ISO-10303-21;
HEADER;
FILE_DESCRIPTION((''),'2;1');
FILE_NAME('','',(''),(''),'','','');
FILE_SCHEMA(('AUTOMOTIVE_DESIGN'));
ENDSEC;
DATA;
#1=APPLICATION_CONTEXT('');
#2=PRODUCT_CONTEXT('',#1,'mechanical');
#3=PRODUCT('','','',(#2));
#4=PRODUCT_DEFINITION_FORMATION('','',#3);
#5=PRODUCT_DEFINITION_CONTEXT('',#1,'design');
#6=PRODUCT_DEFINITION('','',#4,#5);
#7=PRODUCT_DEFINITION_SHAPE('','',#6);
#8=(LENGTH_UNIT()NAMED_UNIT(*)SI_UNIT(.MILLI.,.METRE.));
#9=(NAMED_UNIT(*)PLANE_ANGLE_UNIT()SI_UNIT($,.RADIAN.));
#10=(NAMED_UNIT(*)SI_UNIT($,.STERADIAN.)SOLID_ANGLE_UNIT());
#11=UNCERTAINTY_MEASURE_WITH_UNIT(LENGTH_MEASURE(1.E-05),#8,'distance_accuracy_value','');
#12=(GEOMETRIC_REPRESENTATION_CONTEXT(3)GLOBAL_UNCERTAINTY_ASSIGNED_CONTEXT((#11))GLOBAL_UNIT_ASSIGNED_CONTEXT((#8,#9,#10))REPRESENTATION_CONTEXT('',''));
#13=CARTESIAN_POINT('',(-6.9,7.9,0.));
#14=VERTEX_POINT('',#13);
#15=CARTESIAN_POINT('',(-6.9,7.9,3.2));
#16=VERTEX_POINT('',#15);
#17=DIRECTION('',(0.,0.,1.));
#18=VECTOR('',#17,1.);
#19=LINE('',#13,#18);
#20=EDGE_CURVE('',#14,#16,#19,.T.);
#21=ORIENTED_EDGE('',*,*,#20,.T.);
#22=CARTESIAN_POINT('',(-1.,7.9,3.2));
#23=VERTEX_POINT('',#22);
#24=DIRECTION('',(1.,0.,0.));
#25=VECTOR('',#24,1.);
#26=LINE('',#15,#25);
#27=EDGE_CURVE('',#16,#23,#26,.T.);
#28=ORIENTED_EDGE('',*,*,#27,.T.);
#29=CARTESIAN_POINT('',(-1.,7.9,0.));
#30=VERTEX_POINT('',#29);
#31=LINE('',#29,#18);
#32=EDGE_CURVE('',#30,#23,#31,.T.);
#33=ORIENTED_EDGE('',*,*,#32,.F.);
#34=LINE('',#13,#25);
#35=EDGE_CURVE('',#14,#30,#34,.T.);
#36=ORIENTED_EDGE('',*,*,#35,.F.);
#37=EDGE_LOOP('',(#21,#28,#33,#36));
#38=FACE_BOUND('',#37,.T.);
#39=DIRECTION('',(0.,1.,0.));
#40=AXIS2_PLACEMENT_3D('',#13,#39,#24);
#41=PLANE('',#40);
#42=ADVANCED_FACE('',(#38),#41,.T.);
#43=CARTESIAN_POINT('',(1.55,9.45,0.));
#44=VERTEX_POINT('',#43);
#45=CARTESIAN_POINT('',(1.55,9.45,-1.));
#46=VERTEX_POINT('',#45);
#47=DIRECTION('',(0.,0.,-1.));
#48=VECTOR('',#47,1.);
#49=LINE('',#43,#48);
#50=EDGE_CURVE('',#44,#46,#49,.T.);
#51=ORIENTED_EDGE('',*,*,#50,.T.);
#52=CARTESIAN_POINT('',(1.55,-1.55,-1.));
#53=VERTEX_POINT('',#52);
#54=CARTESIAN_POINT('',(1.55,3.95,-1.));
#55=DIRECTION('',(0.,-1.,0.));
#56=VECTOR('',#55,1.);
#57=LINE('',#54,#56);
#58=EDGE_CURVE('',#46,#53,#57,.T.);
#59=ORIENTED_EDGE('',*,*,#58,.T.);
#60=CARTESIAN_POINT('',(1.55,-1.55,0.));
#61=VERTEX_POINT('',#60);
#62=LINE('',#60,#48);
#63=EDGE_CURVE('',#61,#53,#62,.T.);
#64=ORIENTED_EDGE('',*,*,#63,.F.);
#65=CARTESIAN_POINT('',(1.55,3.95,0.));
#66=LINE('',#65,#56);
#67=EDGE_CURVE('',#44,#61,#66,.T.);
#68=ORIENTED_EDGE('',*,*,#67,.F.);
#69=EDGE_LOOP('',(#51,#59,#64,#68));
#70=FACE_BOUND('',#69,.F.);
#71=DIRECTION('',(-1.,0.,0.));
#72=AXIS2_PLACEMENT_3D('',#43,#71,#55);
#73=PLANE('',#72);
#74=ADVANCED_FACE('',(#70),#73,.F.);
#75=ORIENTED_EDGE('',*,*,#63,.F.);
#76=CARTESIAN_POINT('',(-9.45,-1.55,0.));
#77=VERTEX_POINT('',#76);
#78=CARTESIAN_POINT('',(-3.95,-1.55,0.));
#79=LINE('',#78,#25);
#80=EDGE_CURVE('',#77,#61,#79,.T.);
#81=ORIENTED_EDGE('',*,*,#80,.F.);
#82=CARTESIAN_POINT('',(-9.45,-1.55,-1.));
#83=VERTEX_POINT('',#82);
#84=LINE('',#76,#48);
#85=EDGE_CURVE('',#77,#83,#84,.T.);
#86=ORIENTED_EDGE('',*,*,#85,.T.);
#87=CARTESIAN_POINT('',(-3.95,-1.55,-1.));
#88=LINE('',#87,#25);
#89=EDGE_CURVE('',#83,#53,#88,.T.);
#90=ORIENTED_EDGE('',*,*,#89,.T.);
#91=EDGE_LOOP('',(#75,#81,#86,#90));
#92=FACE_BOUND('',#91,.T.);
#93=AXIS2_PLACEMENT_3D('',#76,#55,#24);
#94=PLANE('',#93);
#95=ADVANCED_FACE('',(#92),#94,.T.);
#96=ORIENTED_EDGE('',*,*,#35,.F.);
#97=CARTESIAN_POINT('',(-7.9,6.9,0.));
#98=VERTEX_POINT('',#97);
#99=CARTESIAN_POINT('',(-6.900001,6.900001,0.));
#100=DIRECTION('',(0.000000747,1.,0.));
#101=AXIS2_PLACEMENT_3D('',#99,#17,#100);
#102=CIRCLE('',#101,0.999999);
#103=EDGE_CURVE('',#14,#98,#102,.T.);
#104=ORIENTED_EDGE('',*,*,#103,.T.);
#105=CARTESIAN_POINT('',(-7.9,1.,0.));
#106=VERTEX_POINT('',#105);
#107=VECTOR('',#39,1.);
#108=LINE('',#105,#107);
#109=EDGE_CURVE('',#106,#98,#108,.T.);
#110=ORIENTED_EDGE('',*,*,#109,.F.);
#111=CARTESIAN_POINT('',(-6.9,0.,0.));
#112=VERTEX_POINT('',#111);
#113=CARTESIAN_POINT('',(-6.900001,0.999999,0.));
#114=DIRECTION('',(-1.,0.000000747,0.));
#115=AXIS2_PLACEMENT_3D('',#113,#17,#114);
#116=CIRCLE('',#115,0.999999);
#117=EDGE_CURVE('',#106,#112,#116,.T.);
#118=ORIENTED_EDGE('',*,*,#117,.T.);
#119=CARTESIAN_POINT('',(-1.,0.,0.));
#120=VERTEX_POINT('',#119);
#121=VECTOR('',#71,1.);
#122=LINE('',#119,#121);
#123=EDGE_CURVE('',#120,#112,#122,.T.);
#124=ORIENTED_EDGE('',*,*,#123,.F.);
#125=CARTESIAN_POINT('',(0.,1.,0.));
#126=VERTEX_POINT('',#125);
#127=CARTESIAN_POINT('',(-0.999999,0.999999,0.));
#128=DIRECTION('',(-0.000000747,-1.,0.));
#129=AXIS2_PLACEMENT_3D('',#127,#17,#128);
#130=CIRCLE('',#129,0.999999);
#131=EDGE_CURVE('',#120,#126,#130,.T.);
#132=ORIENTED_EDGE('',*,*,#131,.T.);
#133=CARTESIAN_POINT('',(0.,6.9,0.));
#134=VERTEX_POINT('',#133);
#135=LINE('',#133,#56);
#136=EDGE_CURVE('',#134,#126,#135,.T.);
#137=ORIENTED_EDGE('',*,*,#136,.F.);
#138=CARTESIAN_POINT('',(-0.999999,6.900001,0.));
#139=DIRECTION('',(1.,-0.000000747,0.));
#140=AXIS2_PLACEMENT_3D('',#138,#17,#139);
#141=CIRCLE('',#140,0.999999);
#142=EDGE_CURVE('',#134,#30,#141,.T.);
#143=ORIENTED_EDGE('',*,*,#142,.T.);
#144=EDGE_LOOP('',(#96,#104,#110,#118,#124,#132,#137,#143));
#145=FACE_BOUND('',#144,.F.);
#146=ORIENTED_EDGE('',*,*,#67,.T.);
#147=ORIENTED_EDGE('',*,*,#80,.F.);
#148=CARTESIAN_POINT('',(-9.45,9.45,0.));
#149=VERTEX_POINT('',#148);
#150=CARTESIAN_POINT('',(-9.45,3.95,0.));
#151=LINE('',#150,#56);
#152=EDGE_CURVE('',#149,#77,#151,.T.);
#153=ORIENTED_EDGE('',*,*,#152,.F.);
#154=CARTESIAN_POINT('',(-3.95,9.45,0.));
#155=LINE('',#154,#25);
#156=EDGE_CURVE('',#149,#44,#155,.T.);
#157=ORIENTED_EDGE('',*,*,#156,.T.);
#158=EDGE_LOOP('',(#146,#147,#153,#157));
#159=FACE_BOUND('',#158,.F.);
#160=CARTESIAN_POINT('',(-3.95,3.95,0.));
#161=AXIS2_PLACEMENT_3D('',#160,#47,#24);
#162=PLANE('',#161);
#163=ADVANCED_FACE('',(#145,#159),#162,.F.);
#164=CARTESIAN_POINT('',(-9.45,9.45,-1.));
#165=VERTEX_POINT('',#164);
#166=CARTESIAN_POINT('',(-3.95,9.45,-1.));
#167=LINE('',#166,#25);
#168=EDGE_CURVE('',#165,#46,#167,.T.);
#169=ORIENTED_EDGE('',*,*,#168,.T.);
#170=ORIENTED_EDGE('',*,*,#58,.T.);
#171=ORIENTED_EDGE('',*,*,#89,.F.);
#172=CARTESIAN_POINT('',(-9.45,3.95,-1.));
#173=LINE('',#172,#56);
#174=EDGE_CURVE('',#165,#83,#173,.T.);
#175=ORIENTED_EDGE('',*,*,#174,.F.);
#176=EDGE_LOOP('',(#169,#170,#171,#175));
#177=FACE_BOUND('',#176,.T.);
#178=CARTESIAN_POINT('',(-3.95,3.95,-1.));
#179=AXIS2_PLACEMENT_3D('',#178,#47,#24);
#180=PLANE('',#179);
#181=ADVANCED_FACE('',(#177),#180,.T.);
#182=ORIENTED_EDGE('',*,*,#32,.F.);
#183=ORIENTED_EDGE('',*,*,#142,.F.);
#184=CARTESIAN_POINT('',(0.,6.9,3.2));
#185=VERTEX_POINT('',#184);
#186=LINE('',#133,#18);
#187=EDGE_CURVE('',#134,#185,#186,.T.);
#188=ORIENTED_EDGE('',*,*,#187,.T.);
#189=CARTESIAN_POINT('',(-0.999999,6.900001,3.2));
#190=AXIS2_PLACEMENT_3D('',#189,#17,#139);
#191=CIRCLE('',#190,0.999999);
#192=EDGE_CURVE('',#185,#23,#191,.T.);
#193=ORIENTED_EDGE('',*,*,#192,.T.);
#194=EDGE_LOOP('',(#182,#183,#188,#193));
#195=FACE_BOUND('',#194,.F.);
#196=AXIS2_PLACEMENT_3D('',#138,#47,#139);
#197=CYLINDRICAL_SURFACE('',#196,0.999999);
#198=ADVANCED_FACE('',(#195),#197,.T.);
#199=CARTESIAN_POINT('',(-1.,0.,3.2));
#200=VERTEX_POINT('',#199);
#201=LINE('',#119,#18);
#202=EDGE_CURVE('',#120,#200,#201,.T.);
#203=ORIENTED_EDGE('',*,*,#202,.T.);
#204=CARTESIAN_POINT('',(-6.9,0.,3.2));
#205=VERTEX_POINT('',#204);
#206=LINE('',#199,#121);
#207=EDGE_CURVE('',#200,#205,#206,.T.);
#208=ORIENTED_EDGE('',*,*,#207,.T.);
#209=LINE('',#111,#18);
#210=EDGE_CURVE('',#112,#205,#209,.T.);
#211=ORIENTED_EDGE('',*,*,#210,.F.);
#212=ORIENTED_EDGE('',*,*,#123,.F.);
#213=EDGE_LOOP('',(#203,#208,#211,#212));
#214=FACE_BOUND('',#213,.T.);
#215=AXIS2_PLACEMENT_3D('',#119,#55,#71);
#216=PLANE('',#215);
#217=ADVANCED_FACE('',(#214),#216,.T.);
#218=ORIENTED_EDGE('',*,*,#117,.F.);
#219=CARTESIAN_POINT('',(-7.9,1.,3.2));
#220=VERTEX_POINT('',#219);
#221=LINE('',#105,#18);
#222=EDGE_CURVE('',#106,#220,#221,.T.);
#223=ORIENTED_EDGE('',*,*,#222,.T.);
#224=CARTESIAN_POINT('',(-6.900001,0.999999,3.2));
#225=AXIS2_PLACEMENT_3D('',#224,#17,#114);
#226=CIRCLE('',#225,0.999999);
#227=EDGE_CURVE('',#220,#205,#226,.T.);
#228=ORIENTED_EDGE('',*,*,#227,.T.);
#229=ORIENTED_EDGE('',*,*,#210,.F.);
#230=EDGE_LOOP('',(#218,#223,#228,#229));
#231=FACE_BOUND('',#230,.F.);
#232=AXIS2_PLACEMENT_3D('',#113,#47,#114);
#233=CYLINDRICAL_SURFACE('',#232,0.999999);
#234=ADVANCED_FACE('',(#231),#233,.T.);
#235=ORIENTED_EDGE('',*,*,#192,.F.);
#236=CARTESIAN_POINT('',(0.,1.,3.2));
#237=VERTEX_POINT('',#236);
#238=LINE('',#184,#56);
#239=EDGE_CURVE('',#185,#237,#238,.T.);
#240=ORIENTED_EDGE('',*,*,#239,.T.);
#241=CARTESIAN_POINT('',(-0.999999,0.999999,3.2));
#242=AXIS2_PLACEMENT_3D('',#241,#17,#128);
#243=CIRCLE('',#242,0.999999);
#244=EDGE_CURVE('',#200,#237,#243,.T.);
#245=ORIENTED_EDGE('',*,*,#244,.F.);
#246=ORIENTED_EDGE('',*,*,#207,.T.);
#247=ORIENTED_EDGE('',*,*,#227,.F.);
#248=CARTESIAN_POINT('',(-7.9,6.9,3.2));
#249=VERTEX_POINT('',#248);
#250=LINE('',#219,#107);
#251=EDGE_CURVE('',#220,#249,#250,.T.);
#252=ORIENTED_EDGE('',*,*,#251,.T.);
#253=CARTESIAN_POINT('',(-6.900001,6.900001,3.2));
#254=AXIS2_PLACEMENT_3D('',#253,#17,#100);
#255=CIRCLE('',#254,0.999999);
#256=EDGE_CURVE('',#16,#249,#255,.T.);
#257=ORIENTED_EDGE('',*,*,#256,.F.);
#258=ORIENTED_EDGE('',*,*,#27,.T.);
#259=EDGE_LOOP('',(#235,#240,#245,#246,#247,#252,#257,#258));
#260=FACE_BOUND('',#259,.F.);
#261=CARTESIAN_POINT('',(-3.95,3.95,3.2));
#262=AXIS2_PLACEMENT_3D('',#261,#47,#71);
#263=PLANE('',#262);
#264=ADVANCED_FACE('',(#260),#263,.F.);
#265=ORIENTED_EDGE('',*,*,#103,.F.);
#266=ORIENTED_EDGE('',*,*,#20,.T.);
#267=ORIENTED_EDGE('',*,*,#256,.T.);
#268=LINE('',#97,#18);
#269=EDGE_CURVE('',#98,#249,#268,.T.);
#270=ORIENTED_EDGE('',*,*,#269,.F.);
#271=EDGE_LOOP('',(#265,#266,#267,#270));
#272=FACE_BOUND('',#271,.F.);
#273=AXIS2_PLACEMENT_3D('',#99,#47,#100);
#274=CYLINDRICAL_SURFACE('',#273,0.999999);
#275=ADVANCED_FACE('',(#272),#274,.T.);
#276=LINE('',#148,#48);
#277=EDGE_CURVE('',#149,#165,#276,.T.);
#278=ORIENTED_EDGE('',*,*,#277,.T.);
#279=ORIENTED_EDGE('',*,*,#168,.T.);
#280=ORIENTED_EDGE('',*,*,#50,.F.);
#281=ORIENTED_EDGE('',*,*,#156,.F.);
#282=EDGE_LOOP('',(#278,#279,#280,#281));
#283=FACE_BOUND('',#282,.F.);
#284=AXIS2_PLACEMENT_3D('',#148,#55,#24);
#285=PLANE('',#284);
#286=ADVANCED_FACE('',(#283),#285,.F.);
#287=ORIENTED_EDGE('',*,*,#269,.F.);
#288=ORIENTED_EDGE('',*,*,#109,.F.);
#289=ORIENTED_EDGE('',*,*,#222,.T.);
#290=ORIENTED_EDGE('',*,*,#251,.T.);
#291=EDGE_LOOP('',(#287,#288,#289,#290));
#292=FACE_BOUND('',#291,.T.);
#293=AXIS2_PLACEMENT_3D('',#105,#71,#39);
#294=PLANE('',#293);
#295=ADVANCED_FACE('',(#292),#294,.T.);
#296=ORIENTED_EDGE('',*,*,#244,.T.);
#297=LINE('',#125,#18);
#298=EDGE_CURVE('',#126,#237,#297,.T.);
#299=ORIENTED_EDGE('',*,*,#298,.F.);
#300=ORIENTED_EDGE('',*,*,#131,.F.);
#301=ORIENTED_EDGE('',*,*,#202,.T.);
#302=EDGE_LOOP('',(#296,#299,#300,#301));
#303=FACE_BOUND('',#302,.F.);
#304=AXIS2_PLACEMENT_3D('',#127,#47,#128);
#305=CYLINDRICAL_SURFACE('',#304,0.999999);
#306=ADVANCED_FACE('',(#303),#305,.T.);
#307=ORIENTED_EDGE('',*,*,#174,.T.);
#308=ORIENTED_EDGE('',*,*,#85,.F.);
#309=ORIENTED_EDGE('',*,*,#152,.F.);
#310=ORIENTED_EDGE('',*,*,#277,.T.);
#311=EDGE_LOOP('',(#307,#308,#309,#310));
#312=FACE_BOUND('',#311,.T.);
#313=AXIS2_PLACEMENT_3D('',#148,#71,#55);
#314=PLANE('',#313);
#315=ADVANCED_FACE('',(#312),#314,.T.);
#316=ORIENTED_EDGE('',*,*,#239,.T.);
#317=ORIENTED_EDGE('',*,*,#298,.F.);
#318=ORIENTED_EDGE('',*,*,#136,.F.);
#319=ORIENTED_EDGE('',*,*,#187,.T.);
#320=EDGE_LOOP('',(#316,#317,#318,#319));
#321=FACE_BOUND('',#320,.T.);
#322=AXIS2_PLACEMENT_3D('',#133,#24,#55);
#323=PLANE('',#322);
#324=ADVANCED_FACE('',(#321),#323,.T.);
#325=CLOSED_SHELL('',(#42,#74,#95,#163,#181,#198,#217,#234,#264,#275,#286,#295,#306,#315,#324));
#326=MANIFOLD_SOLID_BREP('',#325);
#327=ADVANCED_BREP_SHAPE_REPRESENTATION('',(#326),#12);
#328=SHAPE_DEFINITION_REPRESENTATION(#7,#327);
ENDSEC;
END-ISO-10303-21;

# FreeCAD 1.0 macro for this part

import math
import FreeCAD as App
import Part
import Sketcher

V = App.Vector
Q = App.Units.Quantity


def add_polygon(sketch, points):
    """Adds a closed chain of lines whose ends are joined by coincident constraints."""
    first, n = sketch.GeometryCount, len(points)
    for a, b in zip(points, points[1:] + points[:1]):
        sketch.addGeometry(Part.LineSegment(App.Vector(*a, 0), App.Vector(*b, 0)), False)
    for i in range(n):
        sketch.addConstraint(Sketcher.Constraint("Coincident", first + i, 2, first + (i + 1) % n, 1))

doc = App.newDocument("Part")
body = doc.addObject("PartDesign::Body", "Body")

sketch1 = doc.addObject("Sketcher::SketchObject", "Sketch")
body.addObject(sketch1)
sketch1.AttachmentSupport = (doc.XY_Plane, [""])
sketch1.MapMode = "FlatFace"
sketch1.addGeometry(Part.LineSegment(V(-6.9, 0, 0), V(-1, 0, 0)), False)
sketch1.addGeometry(Part.ArcOfCircle(Part.Circle(V(-1, 1, 0), V(0, 0, 1), 1), math.radians(-90), math.radians(0)), False)
sketch1.addGeometry(Part.LineSegment(V(0, 1, 0), V(0, 6.9, 0)), False)
sketch1.addGeometry(Part.ArcOfCircle(Part.Circle(V(-1, 6.9, 0), V(0, 0, 1), 1), math.radians(0), math.radians(90)), False)
sketch1.addGeometry(Part.LineSegment(V(-1, 7.9, 0), V(-6.9, 7.9, 0)), False)
sketch1.addGeometry(Part.ArcOfCircle(Part.Circle(V(-6.9, 6.9, 0), V(0, 0, 1), 1), math.radians(90), math.radians(180)), False)
sketch1.addGeometry(Part.LineSegment(V(-7.9, 6.9, 0), V(-7.9, 1, 0)), False)
sketch1.addGeometry(Part.ArcOfCircle(Part.Circle(V(-6.9, 1, 0), V(0, 0, 1), 1), math.radians(180), math.radians(270)), False)
sketch1.addConstraint(Sketcher.Constraint("Tangent", 0, 2, 1, 1))
sketch1.addConstraint(Sketcher.Constraint("Tangent", 1, 2, 2, 1))
sketch1.addConstraint(Sketcher.Constraint("Tangent", 2, 2, 3, 1))
sketch1.addConstraint(Sketcher.Constraint("Tangent", 3, 2, 4, 1))
sketch1.addConstraint(Sketcher.Constraint("Tangent", 4, 2, 5, 1))
sketch1.addConstraint(Sketcher.Constraint("Tangent", 5, 2, 6, 1))
sketch1.addConstraint(Sketcher.Constraint("Tangent", 6, 2, 7, 1))
sketch1.addConstraint(Sketcher.Constraint("Tangent", 7, 2, 0, 1))
sketch1.addConstraint(Sketcher.Constraint("Horizontal", 0))
sketch1.addConstraint(Sketcher.Constraint("Vertical", 2))
sketch1.addConstraint(Sketcher.Constraint("Horizontal", 4))
sketch1.addConstraint(Sketcher.Constraint("Vertical", 6))
sketch1.addConstraint(Sketcher.Constraint("Equal", 1, 3))
sketch1.addConstraint(Sketcher.Constraint("Equal", 3, 5))
sketch1.addConstraint(Sketcher.Constraint("Equal", 5, 7))
sketch1.addConstraint(Sketcher.Constraint("PointOnObject", 0, 2, -1))
sketch1.addConstraint(Sketcher.Constraint("PointOnObject", 1, 2, -2))
sketch1.addConstraint(Sketcher.Constraint("Equal", 4, 2))
sketch1.addConstraint(Sketcher.Constraint("Radius", 1, Q("0.999999 mm")))
sketch1.addConstraint(Sketcher.Constraint("DistanceX", 0, 1, 0, 2, Q("5.9 mm")))
pad1 = doc.addObject("PartDesign::Pad", "Pad")
body.addObject(pad1)
pad1.Profile = sketch1
pad1.Length = 3.2

sketch2 = doc.addObject("Sketcher::SketchObject", "Sketch001")
body.addObject(sketch2)
sketch2.AttachmentSupport = (doc.XY_Plane, [""])
sketch2.MapMode = "FlatFace"
add_polygon(sketch2, [(-9, -2), (-9, 9), (2, 9), (2, -2)])
sketch2.addConstraint(Sketcher.Constraint("Vertical", 0))
sketch2.addConstraint(Sketcher.Constraint("Horizontal", 1))
sketch2.addConstraint(Sketcher.Constraint("Vertical", 2))
sketch2.addConstraint(Sketcher.Constraint("Horizontal", 3))
sketch2.addConstraint(Sketcher.Constraint("Equal", 3, 0))
sketch2.addConstraint(Sketcher.Constraint("DistanceX", 1, 1, 1, 2, Q("11 mm")))
sketch2.addConstraint(Sketcher.Constraint("DistanceX", 0, 2, -1, 1, Q("9.45 mm")))
sketch2.addConstraint(Sketcher.Constraint("DistanceY", -1, 1, 0, 2, Q("9.45 mm")))
pad2 = doc.addObject("PartDesign::Pad", "Pad001")
body.addObject(pad2)
pad2.Profile = sketch2
pad2.Length = 1
pad2.Reversed = True

doc.recompute()
